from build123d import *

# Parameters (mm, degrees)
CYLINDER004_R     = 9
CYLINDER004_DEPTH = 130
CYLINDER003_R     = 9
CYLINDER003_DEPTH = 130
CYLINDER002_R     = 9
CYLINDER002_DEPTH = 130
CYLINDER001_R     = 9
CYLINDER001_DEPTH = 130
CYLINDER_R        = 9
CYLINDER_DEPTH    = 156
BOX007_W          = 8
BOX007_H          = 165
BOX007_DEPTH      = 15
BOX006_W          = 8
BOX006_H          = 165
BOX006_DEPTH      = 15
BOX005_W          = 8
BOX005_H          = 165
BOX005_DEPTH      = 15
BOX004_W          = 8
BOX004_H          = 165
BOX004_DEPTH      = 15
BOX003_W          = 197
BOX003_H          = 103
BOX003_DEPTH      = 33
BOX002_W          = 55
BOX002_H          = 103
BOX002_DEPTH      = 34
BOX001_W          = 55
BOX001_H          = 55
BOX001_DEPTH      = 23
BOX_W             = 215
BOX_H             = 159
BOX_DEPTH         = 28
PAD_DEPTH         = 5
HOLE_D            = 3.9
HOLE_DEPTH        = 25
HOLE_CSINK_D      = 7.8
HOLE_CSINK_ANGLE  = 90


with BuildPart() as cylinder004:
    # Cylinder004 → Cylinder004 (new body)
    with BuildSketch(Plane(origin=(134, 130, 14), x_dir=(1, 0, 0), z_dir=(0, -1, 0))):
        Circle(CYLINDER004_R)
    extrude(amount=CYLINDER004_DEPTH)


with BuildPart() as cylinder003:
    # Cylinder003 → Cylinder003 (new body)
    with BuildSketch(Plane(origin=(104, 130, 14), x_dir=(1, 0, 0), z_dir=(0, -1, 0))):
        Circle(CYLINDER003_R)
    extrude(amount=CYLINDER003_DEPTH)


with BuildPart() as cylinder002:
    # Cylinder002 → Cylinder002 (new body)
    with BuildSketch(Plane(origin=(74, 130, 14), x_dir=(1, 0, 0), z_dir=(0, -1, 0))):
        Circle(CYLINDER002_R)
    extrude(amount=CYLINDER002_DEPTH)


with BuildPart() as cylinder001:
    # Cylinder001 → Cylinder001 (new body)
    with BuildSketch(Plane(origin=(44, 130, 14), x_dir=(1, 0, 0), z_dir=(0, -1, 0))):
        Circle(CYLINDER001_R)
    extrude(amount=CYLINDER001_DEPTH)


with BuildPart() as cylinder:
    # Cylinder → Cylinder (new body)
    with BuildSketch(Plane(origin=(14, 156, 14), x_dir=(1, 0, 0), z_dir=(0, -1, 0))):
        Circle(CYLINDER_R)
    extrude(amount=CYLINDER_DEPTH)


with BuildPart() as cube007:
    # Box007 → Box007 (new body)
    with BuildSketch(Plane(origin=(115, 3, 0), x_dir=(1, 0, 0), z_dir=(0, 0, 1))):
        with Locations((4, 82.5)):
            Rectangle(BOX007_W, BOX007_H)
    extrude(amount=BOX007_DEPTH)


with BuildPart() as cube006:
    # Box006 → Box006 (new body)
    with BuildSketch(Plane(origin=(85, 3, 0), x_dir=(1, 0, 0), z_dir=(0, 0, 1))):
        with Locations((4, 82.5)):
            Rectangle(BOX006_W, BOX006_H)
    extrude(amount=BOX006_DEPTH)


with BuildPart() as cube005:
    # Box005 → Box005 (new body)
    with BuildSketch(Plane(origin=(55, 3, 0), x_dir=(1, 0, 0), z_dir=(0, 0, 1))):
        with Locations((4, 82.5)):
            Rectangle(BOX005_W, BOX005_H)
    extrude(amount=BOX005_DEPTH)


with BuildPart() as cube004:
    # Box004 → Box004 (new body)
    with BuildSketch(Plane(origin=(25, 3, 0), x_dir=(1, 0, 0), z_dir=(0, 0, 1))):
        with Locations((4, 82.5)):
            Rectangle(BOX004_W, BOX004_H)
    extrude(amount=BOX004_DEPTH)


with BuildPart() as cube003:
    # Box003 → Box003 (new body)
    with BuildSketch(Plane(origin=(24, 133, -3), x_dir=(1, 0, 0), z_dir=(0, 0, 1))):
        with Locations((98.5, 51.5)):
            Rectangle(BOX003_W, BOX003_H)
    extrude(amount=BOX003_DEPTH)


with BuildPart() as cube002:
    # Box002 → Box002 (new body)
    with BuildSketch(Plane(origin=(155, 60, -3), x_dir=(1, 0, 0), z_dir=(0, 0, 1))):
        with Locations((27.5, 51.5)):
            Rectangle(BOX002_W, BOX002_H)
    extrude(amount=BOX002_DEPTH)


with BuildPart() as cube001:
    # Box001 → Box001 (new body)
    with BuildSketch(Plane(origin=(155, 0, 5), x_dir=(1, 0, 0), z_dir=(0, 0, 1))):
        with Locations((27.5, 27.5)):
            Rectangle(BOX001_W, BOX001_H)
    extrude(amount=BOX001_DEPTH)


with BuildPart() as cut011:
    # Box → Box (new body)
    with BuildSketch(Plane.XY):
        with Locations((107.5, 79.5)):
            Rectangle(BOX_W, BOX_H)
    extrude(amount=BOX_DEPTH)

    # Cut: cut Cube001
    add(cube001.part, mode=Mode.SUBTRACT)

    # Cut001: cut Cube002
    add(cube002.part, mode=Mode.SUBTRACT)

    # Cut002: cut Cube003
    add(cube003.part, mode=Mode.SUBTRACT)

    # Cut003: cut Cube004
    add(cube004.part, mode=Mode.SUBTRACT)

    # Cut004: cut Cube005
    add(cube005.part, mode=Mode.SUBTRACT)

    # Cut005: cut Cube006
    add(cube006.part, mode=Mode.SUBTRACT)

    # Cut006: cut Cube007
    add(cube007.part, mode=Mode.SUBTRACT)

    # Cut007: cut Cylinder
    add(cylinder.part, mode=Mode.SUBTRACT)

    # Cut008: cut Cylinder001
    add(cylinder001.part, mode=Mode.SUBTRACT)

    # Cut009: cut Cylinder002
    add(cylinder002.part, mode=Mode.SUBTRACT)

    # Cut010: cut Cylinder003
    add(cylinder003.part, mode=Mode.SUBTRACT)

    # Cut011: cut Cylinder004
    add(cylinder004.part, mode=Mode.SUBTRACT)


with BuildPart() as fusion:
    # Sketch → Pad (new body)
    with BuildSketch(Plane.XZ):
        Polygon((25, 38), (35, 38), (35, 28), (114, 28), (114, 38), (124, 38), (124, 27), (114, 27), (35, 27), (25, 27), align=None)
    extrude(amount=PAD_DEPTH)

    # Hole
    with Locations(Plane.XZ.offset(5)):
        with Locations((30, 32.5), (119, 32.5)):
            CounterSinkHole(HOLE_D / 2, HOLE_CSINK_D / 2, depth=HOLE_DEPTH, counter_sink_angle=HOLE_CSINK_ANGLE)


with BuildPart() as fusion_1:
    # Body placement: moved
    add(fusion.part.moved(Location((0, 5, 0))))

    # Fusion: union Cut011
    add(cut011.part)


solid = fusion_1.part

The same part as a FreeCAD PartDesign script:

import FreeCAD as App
import Part
import Sketcher

V = App.Vector

doc = App.newDocument("Part")
body = doc.addObject("PartDesign::Body", "Body")

# Sketch on XZ plane
sketch1 = doc.addObject("Sketcher::SketchObject", "Sketch")
body.addObject(sketch1)
sketch1.AttachmentSupport = (doc.XZ_Plane, [""])
sketch1.MapMode = "FlatFace"
sketch1.AttachmentOffset = App.Placement(V(0, 0, -130), App.Rotation())
sketch1.addGeometry(Part.Circle(V(134, 14, 0), V(0, 0, 1), 9), False)
sketch1.addConstraint([
    Sketcher.Constraint("Diameter", 0, 18.0),
    Sketcher.Constraint("DistanceX", -1, 1, 0, 3, 134.0),
    Sketcher.Constraint("DistanceY", -1, 1, 0, 3, 14.0),
])
pad1 = doc.addObject("PartDesign::Pad", "Pad")
body.addObject(pad1)
pad1.Profile = sketch1
pad1.Length = 130
body2 = doc.addObject("PartDesign::Body", "Body001")

# Sketch on XZ plane
sketch2 = doc.addObject("Sketcher::SketchObject", "Sketch001")
body2.addObject(sketch2)
sketch2.AttachmentSupport = (doc.getObject("XZ_Plane001"), [""])
sketch2.MapMode = "FlatFace"
sketch2.AttachmentOffset = App.Placement(V(0, 0, -130), App.Rotation())
sketch2.addGeometry(Part.Circle(V(104, 14, 0), V(0, 0, 1), 9), False)
sketch2.addConstraint([
    Sketcher.Constraint("Diameter", 0, 18.0),
    Sketcher.Constraint("DistanceX", -1, 1, 0, 3, 104.0),
    Sketcher.Constraint("DistanceY", -1, 1, 0, 3, 14.0),
])
pad2 = doc.addObject("PartDesign::Pad", "Pad001")
body2.addObject(pad2)
pad2.Profile = sketch2
pad2.Length = 130
body3 = doc.addObject("PartDesign::Body", "Body002")

# Sketch on XZ plane
sketch3 = doc.addObject("Sketcher::SketchObject", "Sketch002")
body3.addObject(sketch3)
sketch3.AttachmentSupport = (doc.getObject("XZ_Plane002"), [""])
sketch3.MapMode = "FlatFace"
sketch3.AttachmentOffset = App.Placement(V(0, 0, -130), App.Rotation())
sketch3.addGeometry(Part.Circle(V(74, 14, 0), V(0, 0, 1), 9), False)
sketch3.addConstraint([
    Sketcher.Constraint("Diameter", 0, 18.0),
    Sketcher.Constraint("DistanceX", -1, 1, 0, 3, 74.0),
    Sketcher.Constraint("DistanceY", -1, 1, 0, 3, 14.0),
])
pad3 = doc.addObject("PartDesign::Pad", "Pad002")
body3.addObject(pad3)
pad3.Profile = sketch3
pad3.Length = 130
body4 = doc.addObject("PartDesign::Body", "Body003")

# Sketch on XZ plane
sketch4 = doc.addObject("Sketcher::SketchObject", "Sketch003")
body4.addObject(sketch4)
sketch4.AttachmentSupport = (doc.getObject("XZ_Plane003"), [""])
sketch4.MapMode = "FlatFace"
sketch4.AttachmentOffset = App.Placement(V(0, 0, -130), App.Rotation())
sketch4.addGeometry(Part.Circle(V(44, 14, 0), V(0, 0, 1), 9), False)
sketch4.addConstraint([
    Sketcher.Constraint("Diameter", 0, 18.0),
    Sketcher.Constraint("DistanceX", -1, 1, 0, 3, 44.0),
    Sketcher.Constraint("DistanceY", -1, 1, 0, 3, 14.0),
])
pad4 = doc.addObject("PartDesign::Pad", "Pad003")
body4.addObject(pad4)
pad4.Profile = sketch4
pad4.Length = 130
body5 = doc.addObject("PartDesign::Body", "Body004")

# Sketch on XZ plane
sketch5 = doc.addObject("Sketcher::SketchObject", "Sketch004")
body5.addObject(sketch5)
sketch5.AttachmentSupport = (doc.getObject("XZ_Plane004"), [""])
sketch5.MapMode = "FlatFace"
sketch5.AttachmentOffset = App.Placement(V(0, 0, -156), App.Rotation())
sketch5.addGeometry(Part.Circle(V(14, 14, 0), V(0, 0, 1), 9), False)
sketch5.addConstraint([
    Sketcher.Constraint("Diameter", 0, 18.0),
    Sketcher.Constraint("DistanceX", -1, 1, 0, 3, 14.0),
    Sketcher.Constraint("DistanceY", -1, 1, 0, 3, 14.0),
])
pad5 = doc.addObject("PartDesign::Pad", "Pad004")
body5.addObject(pad5)
pad5.Profile = sketch5
pad5.Length = 156
body6 = doc.addObject("PartDesign::Body", "Body005")

# Sketch on XY plane
sketch6 = doc.addObject("Sketcher::SketchObject", "Sketch005")
body6.addObject(sketch6)
sketch6.AttachmentSupport = (doc.getObject("XY_Plane005"), [""])
sketch6.MapMode = "FlatFace"
sketch6.addGeometry([
    Part.LineSegment(V(115, 168, 0), V(115, 3, 0)),
    Part.LineSegment(V(115, 3, 0), V(123, 3, 0)),
    Part.LineSegment(V(123, 3, 0), V(123, 168, 0)),
    Part.LineSegment(V(123, 168, 0), V(115, 168, 0)),
], False)
sketch6.addConstraint([
    Sketcher.Constraint("Coincident", 0, 2, 1, 1),
    Sketcher.Constraint("Coincident", 1, 2, 2, 1),
    Sketcher.Constraint("Coincident", 2, 2, 3, 1),
    Sketcher.Constraint("Coincident", 3, 2, 0, 1),
    Sketcher.Constraint("Vertical", 0),
    Sketcher.Constraint("Horizontal", 1),
    Sketcher.Constraint("Vertical", 2),
    Sketcher.Constraint("Horizontal", 3),
    Sketcher.Constraint("DistanceX", 1, 1, 1, 2, 8.0),
    Sketcher.Constraint("DistanceY", 0, 2, 0, 1, 165.0),
    Sketcher.Constraint("DistanceX", -1, 1, 0, 2, 115.0),
    Sketcher.Constraint("DistanceY", -1, 1, 0, 2, 3.0),
])
pad6 = doc.addObject("PartDesign::Pad", "Pad005")
body6.addObject(pad6)
pad6.Profile = sketch6
pad6.Length = 15
body7 = doc.addObject("PartDesign::Body", "Body006")

# Sketch on XY plane
sketch7 = doc.addObject("Sketcher::SketchObject", "Sketch006")
body7.addObject(sketch7)
sketch7.AttachmentSupport = (doc.getObject("XY_Plane006"), [""])
sketch7.MapMode = "FlatFace"
sketch7.addGeometry([
    Part.LineSegment(V(85, 168, 0), V(85, 3, 0)),
    Part.LineSegment(V(85, 3, 0), V(93, 3, 0)),
    Part.LineSegment(V(93, 3, 0), V(93, 168, 0)),
    Part.LineSegment(V(93, 168, 0), V(85, 168, 0)),
], False)
sketch7.addConstraint([
    Sketcher.Constraint("Coincident", 0, 2, 1, 1),
    Sketcher.Constraint("Coincident", 1, 2, 2, 1),
    Sketcher.Constraint("Coincident", 2, 2, 3, 1),
    Sketcher.Constraint("Coincident", 3, 2, 0, 1),
    Sketcher.Constraint("Vertical", 0),
    Sketcher.Constraint("Horizontal", 1),
    Sketcher.Constraint("Vertical", 2),
    Sketcher.Constraint("Horizontal", 3),
    Sketcher.Constraint("DistanceX", 1, 1, 1, 2, 8.0),
    Sketcher.Constraint("DistanceY", 0, 2, 0, 1, 165.0),
    Sketcher.Constraint("DistanceX", -1, 1, 0, 2, 85.0),
    Sketcher.Constraint("DistanceY", -1, 1, 0, 2, 3.0),
])
pad7 = doc.addObject("PartDesign::Pad", "Pad006")
body7.addObject(pad7)
pad7.Profile = sketch7
pad7.Length = 15
body8 = doc.addObject("PartDesign::Body", "Body007")

# Sketch on XY plane
sketch8 = doc.addObject("Sketcher::SketchObject", "Sketch007")
body8.addObject(sketch8)
sketch8.AttachmentSupport = (doc.getObject("XY_Plane007"), [""])
sketch8.MapMode = "FlatFace"
sketch8.addGeometry([
    Part.LineSegment(V(55, 168, 0), V(55, 3, 0)),
    Part.LineSegment(V(55, 3, 0), V(63, 3, 0)),
    Part.LineSegment(V(63, 3, 0), V(63, 168, 0)),
    Part.LineSegment(V(63, 168, 0), V(55, 168, 0)),
], False)
sketch8.addConstraint([
    Sketcher.Constraint("Coincident", 0, 2, 1, 1),
    Sketcher.Constraint("Coincident", 1, 2, 2, 1),
    Sketcher.Constraint("Coincident", 2, 2, 3, 1),
    Sketcher.Constraint("Coincident", 3, 2, 0, 1),
    Sketcher.Constraint("Vertical", 0),
    Sketcher.Constraint("Horizontal", 1),
    Sketcher.Constraint("Vertical", 2),
    Sketcher.Constraint("Horizontal", 3),
    Sketcher.Constraint("DistanceX", 1, 1, 1, 2, 8.0),
    Sketcher.Constraint("DistanceY", 0, 2, 0, 1, 165.0),
    Sketcher.Constraint("DistanceX", -1, 1, 0, 2, 55.0),
    Sketcher.Constraint("DistanceY", -1, 1, 0, 2, 3.0),
])
pad8 = doc.addObject("PartDesign::Pad", "Pad007")
body8.addObject(pad8)
pad8.Profile = sketch8
pad8.Length = 15
body9 = doc.addObject("PartDesign::Body", "Body008")

# Sketch on XY plane
sketch9 = doc.addObject("Sketcher::SketchObject", "Sketch008")
body9.addObject(sketch9)
sketch9.AttachmentSupport = (doc.getObject("XY_Plane008"), [""])
sketch9.MapMode = "FlatFace"
sketch9.addGeometry([
    Part.LineSegment(V(25, 168, 0), V(25, 3, 0)),
    Part.LineSegment(V(25, 3, 0), V(33, 3, 0)),
    Part.LineSegment(V(33, 3, 0), V(33, 168, 0)),
    Part.LineSegment(V(33, 168, 0), V(25, 168, 0)),
], False)
sketch9.addConstraint([
    Sketcher.Constraint("Coincident", 0, 2, 1, 1),
    Sketcher.Constraint("Coincident", 1, 2, 2, 1),
    Sketcher.Constraint("Coincident", 2, 2, 3, 1),
    Sketcher.Constraint("Coincident", 3, 2, 0, 1),
    Sketcher.Constraint("Vertical", 0),
    Sketcher.Constraint("Horizontal", 1),
    Sketcher.Constraint("Vertical", 2),
    Sketcher.Constraint("Horizontal", 3),
    Sketcher.Constraint("DistanceX", 1, 1, 1, 2, 8.0),
    Sketcher.Constraint("DistanceY", 0, 2, 0, 1, 165.0),
    Sketcher.Constraint("DistanceX", -1, 1, 0, 2, 25.0),
    Sketcher.Constraint("DistanceY", -1, 1, 0, 2, 3.0),
])
pad9 = doc.addObject("PartDesign::Pad", "Pad008")
body9.addObject(pad9)
pad9.Profile = sketch9
pad9.Length = 15
body10 = doc.addObject("PartDesign::Body", "Body009")

# Sketch on XY plane
sketch10 = doc.addObject("Sketcher::SketchObject", "Sketch009")
body10.addObject(sketch10)
sketch10.AttachmentSupport = (doc.getObject("XY_Plane009"), [""])
sketch10.MapMode = "FlatFace"
sketch10.AttachmentOffset = App.Placement(V(0, 0, -3), App.Rotation())
sketch10.addGeometry([
    Part.LineSegment(V(24, 236, 0), V(24, 133, 0)),
    Part.LineSegment(V(24, 133, 0), V(221, 133, 0)),
    Part.LineSegment(V(221, 133, 0), V(221, 236, 0)),
    Part.LineSegment(V(221, 236, 0), V(24, 236, 0)),
], False)
sketch10.addConstraint([
    Sketcher.Constraint("Coincident", 0, 2, 1, 1),
    Sketcher.Constraint("Coincident", 1, 2, 2, 1),
    Sketcher.Constraint("Coincident", 2, 2, 3, 1),
    Sketcher.Constraint("Coincident", 3, 2, 0, 1),
    Sketcher.Constraint("Vertical", 0),
    Sketcher.Constraint("Horizontal", 1),
    Sketcher.Constraint("Vertical", 2),
    Sketcher.Constraint("Horizontal", 3),
    Sketcher.Constraint("DistanceX", 1, 1, 1, 2, 197.0),
    Sketcher.Constraint("DistanceY", 0, 2, 0, 1, 103.0),
    Sketcher.Constraint("DistanceX", -1, 1, 0, 2, 24.0),
    Sketcher.Constraint("DistanceY", -1, 1, 0, 2, 133.0),
])
pad10 = doc.addObject("PartDesign::Pad", "Pad009")
body10.addObject(pad10)
pad10.Profile = sketch10
pad10.Length = 33
body11 = doc.addObject("PartDesign::Body", "Body010")

# Sketch on XY plane
sketch11 = doc.addObject("Sketcher::SketchObject", "Sketch010")
body11.addObject(sketch11)
sketch11.AttachmentSupport = (doc.getObject("XY_Plane010"), [""])
sketch11.MapMode = "FlatFace"
sketch11.AttachmentOffset = App.Placement(V(0, 0, -3), App.Rotation())
sketch11.addGeometry([
    Part.LineSegment(V(155, 163, 0), V(155, 60, 0)),
    Part.LineSegment(V(155, 60, 0), V(210, 60, 0)),
    Part.LineSegment(V(210, 60, 0), V(210, 163, 0)),
    Part.LineSegment(V(210, 163, 0), V(155, 163, 0)),
], False)
sketch11.addConstraint([
    Sketcher.Constraint("Coincident", 0, 2, 1, 1),
    Sketcher.Constraint("Coincident", 1, 2, 2, 1),
    Sketcher.Constraint("Coincident", 2, 2, 3, 1),
    Sketcher.Constraint("Coincident", 3, 2, 0, 1),
    Sketcher.Constraint("Vertical", 0),
    Sketcher.Constraint("Horizontal", 1),
    Sketcher.Constraint("Vertical", 2),
    Sketcher.Constraint("Horizontal", 3),
    Sketcher.Constraint("DistanceX", 1, 1, 1, 2, 55.0),
    Sketcher.Constraint("DistanceY", 0, 2, 0, 1, 103.0),
    Sketcher.Constraint("DistanceX", -1, 1, 0, 2, 155.0),
    Sketcher.Constraint("DistanceY", -1, 1, 0, 2, 60.0),
])
pad11 = doc.addObject("PartDesign::Pad", "Pad010")
body11.addObject(pad11)
pad11.Profile = sketch11
pad11.Length = 34
body12 = doc.addObject("PartDesign::Body", "Body011")

# Sketch on XY plane
sketch12 = doc.addObject("Sketcher::SketchObject", "Sketch011")
body12.addObject(sketch12)
sketch12.AttachmentSupport = (doc.getObject("XY_Plane011"), [""])
sketch12.MapMode = "FlatFace"
sketch12.AttachmentOffset = App.Placement(V(0, 0, 5), App.Rotation())
sketch12.addGeometry([
    Part.LineSegment(V(155, 55, 0), V(155, 0, 0)),
    Part.LineSegment(V(155, 0, 0), V(210, 0, 0)),
    Part.LineSegment(V(210, 0, 0), V(210, 55, 0)),
    Part.LineSegment(V(210, 55, 0), V(155, 55, 0)),
], False)
sketch12.addConstraint([
    Sketcher.Constraint("Coincident", 0, 2, 1, 1),
    Sketcher.Constraint("Coincident", 1, 2, 2, 1),
    Sketcher.Constraint("Coincident", 2, 2, 3, 1),
    Sketcher.Constraint("Coincident", 3, 2, 0, 1),
    Sketcher.Constraint("Vertical", 0),
    Sketcher.Constraint("Horizontal", 1),
    Sketcher.Constraint("Vertical", 2),
    Sketcher.Constraint("Horizontal", 3),
    Sketcher.Constraint("PointOnObject", 0, 2, -1),
    Sketcher.Constraint("Equal", 3, 0),
    Sketcher.Constraint("DistanceX", 1, 1, 1, 2, 55.0),
    Sketcher.Constraint("DistanceX", -1, 1, 0, 2, 155.0),
])
pad12 = doc.addObject("PartDesign::Pad", "Pad011")
body12.addObject(pad12)
pad12.Profile = sketch12
pad12.Length = 23
body13 = doc.addObject("PartDesign::Body", "Body012")

# Sketch on XY plane
sketch13 = doc.addObject("Sketcher::SketchObject", "Sketch012")
body13.addObject(sketch13)
sketch13.AttachmentSupport = (doc.getObject("XY_Plane012"), [""])
sketch13.MapMode = "FlatFace"
sketch13.addGeometry([
    Part.LineSegment(V(0, 159, 0), V(0, 0, 0)),
    Part.LineSegment(V(0, 0, 0), V(215, 0, 0)),
    Part.LineSegment(V(215, 0, 0), V(215, 159, 0)),
    Part.LineSegment(V(215, 159, 0), V(0, 159, 0)),
], False)
sketch13.addConstraint([
    Sketcher.Constraint("Coincident", 0, 2, 1, 1),
    Sketcher.Constraint("Coincident", 1, 2, 2, 1),
    Sketcher.Constraint("Coincident", 2, 2, 3, 1),
    Sketcher.Constraint("Coincident", 3, 2, 0, 1),
    Sketcher.Constraint("Vertical", 0),
    Sketcher.Constraint("Horizontal", 1),
    Sketcher.Constraint("Vertical", 2),
    Sketcher.Constraint("Horizontal", 3),
    Sketcher.Constraint("Coincident", 0, 2, -1, 1),
    Sketcher.Constraint("DistanceX", 1, 1, 1, 2, 215.0),
    Sketcher.Constraint("DistanceY", 0, 2, 0, 1, 159.0),
])
pad13 = doc.addObject("PartDesign::Pad", "Pad012")
body13.addObject(pad13)
pad13.Profile = sketch13
pad13.Length = 28
doc.recompute()

boolean = doc.addObject("PartDesign::Boolean", "Boolean")
body13.addObject(boolean)
boolean.Type = "Cut"
boolean.addObjects([body12])
doc.recompute()

boolean2 = doc.addObject("PartDesign::Boolean", "Boolean001")
body13.addObject(boolean2)
boolean2.Type = "Cut"
boolean2.addObjects([body11])
doc.recompute()

boolean3 = doc.addObject("PartDesign::Boolean", "Boolean002")
body13.addObject(boolean3)
boolean3.Type = "Cut"
boolean3.addObjects([body10])
doc.recompute()

boolean4 = doc.addObject("PartDesign::Boolean", "Boolean003")
body13.addObject(boolean4)
boolean4.Type = "Cut"
boolean4.addObjects([body9])
doc.recompute()

boolean5 = doc.addObject("PartDesign::Boolean", "Boolean004")
body13.addObject(boolean5)
boolean5.Type = "Cut"
boolean5.addObjects([body8])
doc.recompute()

boolean6 = doc.addObject("PartDesign::Boolean", "Boolean005")
body13.addObject(boolean6)
boolean6.Type = "Cut"
boolean6.addObjects([body7])
doc.recompute()

boolean7 = doc.addObject("PartDesign::Boolean", "Boolean006")
body13.addObject(boolean7)
boolean7.Type = "Cut"
boolean7.addObjects([body6])
doc.recompute()

boolean8 = doc.addObject("PartDesign::Boolean", "Boolean007")
body13.addObject(boolean8)
boolean8.Type = "Cut"
boolean8.addObjects([body5])
doc.recompute()

boolean9 = doc.addObject("PartDesign::Boolean", "Boolean008")
body13.addObject(boolean9)
boolean9.Type = "Cut"
boolean9.addObjects([body4])
doc.recompute()

boolean10 = doc.addObject("PartDesign::Boolean", "Boolean009")
body13.addObject(boolean10)
boolean10.Type = "Cut"
boolean10.addObjects([body3])
doc.recompute()

boolean11 = doc.addObject("PartDesign::Boolean", "Boolean010")
body13.addObject(boolean11)
boolean11.Type = "Cut"
boolean11.addObjects([body2])
doc.recompute()

boolean12 = doc.addObject("PartDesign::Boolean", "Boolean011")
body13.addObject(boolean12)
boolean12.Type = "Cut"
boolean12.addObjects([body])
body14 = doc.addObject("PartDesign::Body", "Body013")

# Sketch on XZ plane
sketch14 = doc.addObject("Sketcher::SketchObject", "Sketch013")
body14.addObject(sketch14)
sketch14.AttachmentSupport = (doc.getObject("XZ_Plane013"), [""])
sketch14.MapMode = "FlatFace"
sketch14.addGeometry([
    Part.LineSegment(V(35, 38, 0), V(25, 38, 0)),  # 0
    Part.LineSegment(V(25, 38, 0), V(25, 27, 0)),  # 1
    Part.LineSegment(V(25, 27, 0), V(124, 27, 0)),  # 2
    Part.LineSegment(V(124, 27, 0), V(124, 38, 0)),  # 3
    Part.LineSegment(V(124, 38, 0), V(114, 38, 0)),  # 4
    Part.LineSegment(V(114, 38, 0), V(114, 28, 0)),  # 5
    Part.LineSegment(V(114, 28, 0), V(35, 28, 0)),  # 6
    Part.LineSegment(V(35, 28, 0), V(35, 38, 0)),  # 7
], False)
sketch14.addConstraint([
    Sketcher.Constraint("Coincident", 0, 2, 1, 1),
    Sketcher.Constraint("Coincident", 1, 2, 2, 1),
    Sketcher.Constraint("Coincident", 2, 2, 3, 1),
    Sketcher.Constraint("Coincident", 3, 2, 4, 1),
    Sketcher.Constraint("Coincident", 4, 2, 5, 1),
    Sketcher.Constraint("Coincident", 5, 2, 6, 1),
    Sketcher.Constraint("Coincident", 6, 2, 7, 1),
    Sketcher.Constraint("Coincident", 7, 2, 0, 1),
    Sketcher.Constraint("Horizontal", 0),
    Sketcher.Constraint("Vertical", 1),
    Sketcher.Constraint("Horizontal", 2),
    Sketcher.Constraint("Vertical", 3),
    Sketcher.Constraint("Horizontal", 4),
    Sketcher.Constraint("Vertical", 5),
    Sketcher.Constraint("Horizontal", 6),
    Sketcher.Constraint("Vertical", 7),
    Sketcher.Constraint("Horizontal", 0, 2, 3, 2),
    Sketcher.Constraint("Equal", 0, 4),
    Sketcher.Constraint("Equal", 4, 5),
    Sketcher.Constraint("DistanceX", 0, 2, 0, 1, 10.0),
    Sketcher.Constraint("DistanceX", 2, 1, 2, 2, 99.0),
    Sketcher.Constraint("DistanceY", 1, 2, 1, 1, 11.0),
    Sketcher.Constraint("DistanceX", -1, 1, 0, 2, 25.0),
    Sketcher.Constraint("DistanceY", -1, 1, 0, 2, 38.0),
])
pad14 = doc.addObject("PartDesign::Pad", "Pad013")
body14.addObject(pad14)
pad14.Profile = sketch14
pad14.Length = 5

# Sketch on XZ plane
sketch15 = doc.addObject("Sketcher::SketchObject", "Sketch014")
body14.addObject(sketch15)
sketch15.AttachmentSupport = (doc.getObject("XZ_Plane013"), [""])
sketch15.MapMode = "FlatFace"
sketch15.AttachmentOffset = App.Placement(V(0, 0, 5), App.Rotation())
sketch15.addGeometry([
    Part.Circle(V(30, 32.5, 0), V(0, 0, 1), 1.9),
    Part.Circle(V(119, 32.5, 0), V(0, 0, 1), 1.9),
], False)
sketch15.addConstraint([
    Sketcher.Constraint("Equal", 0, 1),
    Sketcher.Constraint("Horizontal", 0, 3, 1, 3),
    Sketcher.Constraint("Diameter", 0, 3.9),
    Sketcher.Constraint("DistanceX", -1, 1, 0, 3, 30.0),
    Sketcher.Constraint("DistanceX", -1, 1, 1, 3, 119.0),
    Sketcher.Constraint("DistanceY", -1, 1, 0, 3, 32.5),
])
doc.recompute()
hole = doc.addObject("PartDesign::Hole", "Hole")
body14.addObject(hole)
hole.Profile = sketch15
hole.ThreadType = "None"
hole.Diameter = 3.9
hole.DepthType = "Dimension"
hole.Depth = 25
hole.DrillPoint = "Flat"
hole.HoleCutType = "Countersink"
hole.HoleCutDiameter = 7.8
hole.HoleCutCountersinkAngle = 90
body15 = doc.addObject("PartDesign::Body", "Body014")
doc.recompute()

body14.Placement = App.Placement(V(0, 5, 0), App.Rotation(V(0, 0, 1), 0))
boolean13 = doc.addObject("PartDesign::Boolean", "Boolean012")
body15.addObject(boolean13)
boolean13.Type = "Fuse"
boolean13.addObjects([body14])
doc.recompute()

boolean14 = doc.addObject("PartDesign::Boolean", "Boolean013")
body15.addObject(boolean14)
boolean14.Type = "Fuse"
boolean14.addObjects([body13])

doc.recompute()
